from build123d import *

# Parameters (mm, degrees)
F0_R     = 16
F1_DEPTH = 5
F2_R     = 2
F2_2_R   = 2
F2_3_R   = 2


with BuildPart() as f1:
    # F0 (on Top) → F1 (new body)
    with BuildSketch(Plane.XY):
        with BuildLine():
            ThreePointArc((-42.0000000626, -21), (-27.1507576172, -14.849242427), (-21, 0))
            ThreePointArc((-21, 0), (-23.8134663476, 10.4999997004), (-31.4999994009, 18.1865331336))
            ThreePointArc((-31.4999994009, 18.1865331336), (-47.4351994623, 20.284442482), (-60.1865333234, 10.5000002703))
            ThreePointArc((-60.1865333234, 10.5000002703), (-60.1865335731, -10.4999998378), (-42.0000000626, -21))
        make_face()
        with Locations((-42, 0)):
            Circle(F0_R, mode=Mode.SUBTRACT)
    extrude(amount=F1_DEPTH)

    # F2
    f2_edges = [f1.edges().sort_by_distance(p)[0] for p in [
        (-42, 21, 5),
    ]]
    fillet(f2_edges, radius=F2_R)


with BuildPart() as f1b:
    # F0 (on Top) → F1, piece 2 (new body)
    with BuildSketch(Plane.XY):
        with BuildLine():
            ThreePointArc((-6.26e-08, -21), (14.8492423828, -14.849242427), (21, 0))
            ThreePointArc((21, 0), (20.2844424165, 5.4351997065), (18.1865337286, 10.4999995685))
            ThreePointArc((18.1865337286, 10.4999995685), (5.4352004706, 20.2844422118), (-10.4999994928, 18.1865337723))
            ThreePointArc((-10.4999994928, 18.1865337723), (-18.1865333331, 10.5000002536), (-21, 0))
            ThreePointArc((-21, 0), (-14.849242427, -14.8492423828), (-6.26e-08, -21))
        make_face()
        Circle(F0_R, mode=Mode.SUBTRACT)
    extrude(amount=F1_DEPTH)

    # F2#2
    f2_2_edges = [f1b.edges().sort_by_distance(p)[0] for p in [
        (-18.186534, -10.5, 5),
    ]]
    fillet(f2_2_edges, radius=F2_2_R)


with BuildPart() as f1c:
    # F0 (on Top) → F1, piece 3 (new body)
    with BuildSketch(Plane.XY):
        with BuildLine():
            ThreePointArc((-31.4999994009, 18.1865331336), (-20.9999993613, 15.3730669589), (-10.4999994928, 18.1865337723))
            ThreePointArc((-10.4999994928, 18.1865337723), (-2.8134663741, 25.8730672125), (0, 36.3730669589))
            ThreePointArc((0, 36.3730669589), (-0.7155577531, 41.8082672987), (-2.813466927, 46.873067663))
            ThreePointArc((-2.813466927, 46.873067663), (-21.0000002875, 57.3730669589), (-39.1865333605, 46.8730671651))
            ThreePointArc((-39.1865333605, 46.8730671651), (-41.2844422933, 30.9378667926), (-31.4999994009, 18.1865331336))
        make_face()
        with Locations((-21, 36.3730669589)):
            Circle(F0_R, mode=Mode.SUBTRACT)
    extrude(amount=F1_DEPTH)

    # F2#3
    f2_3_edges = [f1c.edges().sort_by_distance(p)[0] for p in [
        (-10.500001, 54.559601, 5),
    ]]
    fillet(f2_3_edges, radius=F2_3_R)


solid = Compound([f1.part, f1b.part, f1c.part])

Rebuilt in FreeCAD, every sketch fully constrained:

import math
import FreeCAD as App
import Part
import Sketcher
from FreeCAD import Vector


def edges_at(feature, points):
    """Names of the edges that pass closest to the given points."""
    edges = feature.Shape.Edges
    near = lambda p: min(range(len(edges)), key=lambda i: edges[i].distToShape(Part.Vertex(*p))[0])
    return sorted({f"Edge{near(p) + 1}" for p in points})

doc = App.newDocument("Part")
body = doc.addObject("PartDesign::Body", "Body")

# Sketch on XY plane
sketch1 = body.newObject("Sketcher::SketchObject", "Sketch")
sketch1.AttachmentSupport = (doc.getObject("XY_Plane"), [""])
sketch1.MapMode = "FlatFace"
sketch1.addGeometry(Part.ArcOfCircle(Part.Circle(Vector(-42, 0, 0), Vector(0, 0, 1), 21), math.radians(-90), math.radians(0)), False)
sketch1.addGeometry(Part.ArcOfCircle(Part.Circle(Vector(-42, 0, 0), Vector(0, 0, 1), 21), math.radians(0), math.radians(60)), False)
sketch1.addGeometry(Part.ArcOfCircle(Part.Circle(Vector(-42, 0, 0), Vector(0, 0, 1), 21), math.radians(60), math.radians(150)), False)
sketch1.addGeometry(Part.ArcOfCircle(Part.Circle(Vector(-42, 0, 0), Vector(0, 0, 1), 21), math.radians(150), math.radians(270)), False)
sketch1.addGeometry(Part.Circle(Vector(-42, 0, 0), Vector(0, 0, 1), 16), False)
sketch1.addConstraint(Sketcher.Constraint("Tangent", 0, 2, 1, 1))
sketch1.addConstraint(Sketcher.Constraint("Tangent", 1, 2, 2, 1))
sketch1.addConstraint(Sketcher.Constraint("Tangent", 2, 2, 3, 1))
sketch1.addConstraint(Sketcher.Constraint("Tangent", 3, 2, 0, 1))
sketch1.addConstraint(Sketcher.Constraint("Coincident", 4, 3, 0, 3))
sketch1.addConstraint(Sketcher.Constraint("Equal", 0, 1))
sketch1.addConstraint(Sketcher.Constraint("PointOnObject", 0, 3, -1))
sketch1.addConstraint(Sketcher.Constraint("PointOnObject", 0, 2, -1))
sketch1.addConstraint(Sketcher.Constraint("Vertical", 4, 3, 3, 2))
sketch1.addConstraint(Sketcher.Constraint("Diameter", 4, 32.0))
sketch1.addConstraint(Sketcher.Constraint("Radius", 0, 21.0))
sketch1.addConstraint(Sketcher.Constraint("DistanceX", 0, 3, -1, 1, 42.0))
sketch1.addConstraint(Sketcher.Constraint("DistanceX", 1, 2, -1, 1, 31.499999))
sketch1.addConstraint(Sketcher.Constraint("DistanceY", -1, 1, 2, 2, 10.5))
pad1 = body.newObject("PartDesign::Pad", "Pad")
pad1.Profile = sketch1
pad1.Length = 5
doc.recompute()

fillet = body.newObject("PartDesign::Fillet", "Fillet")
fillet.Base = (pad1, edges_at(pad1, [(-47.435, 20.284, 5)]))
fillet.Radius = 2
body2 = doc.addObject("PartDesign::Body", "Body001")

# Sketch on XY plane
sketch2 = body2.newObject("Sketcher::SketchObject", "Sketch001")
sketch2.AttachmentSupport = (doc.getObject("XY_Plane001"), [""])
sketch2.MapMode = "FlatFace"
sketch2.addGeometry(Part.ArcOfCircle(Part.Circle(Vector(0, 0, 0), Vector(0, 0, 1), 21), math.radians(-90), math.radians(0)), False)
sketch2.addGeometry(Part.ArcOfCircle(Part.Circle(Vector(0, 0, 0), Vector(0, 0, 1), 21), math.radians(0), math.radians(30)), False)
sketch2.addGeometry(Part.ArcOfCircle(Part.Circle(Vector(0, 0, 0), Vector(0, 0, 1), 21), math.radians(30), math.radians(120)), False)
sketch2.addGeometry(Part.ArcOfCircle(Part.Circle(Vector(0, 0, 0), Vector(0, 0, 1), 21), math.radians(120), math.radians(180)), False)
sketch2.addGeometry(Part.ArcOfCircle(Part.Circle(Vector(0, 0, 0), Vector(0, 0, 1), 21), math.radians(180), math.radians(270)), False)
sketch2.addGeometry(Part.Circle(Vector(0, 0, 0), Vector(0, 0, 1), 16), False)
sketch2.addConstraint(Sketcher.Constraint("Tangent", 0, 2, 1, 1))
sketch2.addConstraint(Sketcher.Constraint("Tangent", 1, 2, 2, 1))
sketch2.addConstraint(Sketcher.Constraint("Tangent", 2, 2, 3, 1))
sketch2.addConstraint(Sketcher.Constraint("Tangent", 3, 2, 4, 1))
sketch2.addConstraint(Sketcher.Constraint("Tangent", 4, 2, 0, 1))
sketch2.addConstraint(Sketcher.Constraint("Coincident", 0, 3, -1, 1))
sketch2.addConstraint(Sketcher.Constraint("Coincident", 2, 3, -1, 1))
sketch2.addConstraint(Sketcher.Constraint("Coincident", 5, 3, -1, 1))
sketch2.addConstraint(Sketcher.Constraint("PointOnObject", 0, 2, -1))
sketch2.addConstraint(Sketcher.Constraint("PointOnObject", 3, 2, -1))
sketch2.addConstraint(Sketcher.Constraint("PointOnObject", 4, 2, -2))
sketch2.addConstraint(Sketcher.Constraint("Diameter", 5, 32.0))
sketch2.addConstraint(Sketcher.Constraint("Radius", 0, 21.0))
sketch2.addConstraint(Sketcher.Constraint("DistanceY", -1, 1, 1, 2, 10.5))
sketch2.addConstraint(Sketcher.Constraint("DistanceX", 2, 2, -1, 1, 10.499999))
pad2 = body2.newObject("PartDesign::Pad", "Pad001")
pad2.Profile = sketch2
pad2.Length = 5
doc.recompute()

fillet2 = body2.newObject("PartDesign::Fillet", "Fillet001")
fillet2.Base = (pad2, edges_at(pad2, [(-14.849, -14.849, 5)]))
fillet2.Radius = 2
body3 = doc.addObject("PartDesign::Body", "Body002")

# Sketch on XY plane
sketch3 = body3.newObject("Sketcher::SketchObject", "Sketch002")
sketch3.AttachmentSupport = (doc.getObject("XY_Plane002"), [""])
sketch3.MapMode = "FlatFace"
sketch3.addGeometry(Part.ArcOfCircle(Part.Circle(Vector(-21, 36, 0), Vector(0, 0, 1), 21), math.radians(-120), math.radians(-60)), False)
sketch3.addGeometry(Part.ArcOfCircle(Part.Circle(Vector(-21, 36, 0), Vector(0, 0, 1), 21), math.radians(-60), math.radians(0)), False)
sketch3.addGeometry(Part.ArcOfCircle(Part.Circle(Vector(-21, 36, 0), Vector(0, 0, 1), 21), math.radians(0), math.radians(150)), False)
sketch3.addGeometry(Part.ArcOfCircle(Part.Circle(Vector(-21, 36, 0), Vector(0, 0, 1), 21), math.radians(150), math.radians(240)), False)
sketch3.addGeometry(Part.Circle(Vector(-21, 36, 0), Vector(0, 0, 1), 16), False)
sketch3.addConstraint(Sketcher.Constraint("Tangent", 0, 2, 1, 1))
sketch3.addConstraint(Sketcher.Constraint("Tangent", 1, 2, 2, 1))
sketch3.addConstraint(Sketcher.Constraint("Tangent", 2, 2, 3, 1))
sketch3.addConstraint(Sketcher.Constraint("Tangent", 3, 2, 0, 1))
sketch3.addConstraint(Sketcher.Constraint("Coincident", 4, 3, 0, 3))
sketch3.addConstraint(Sketcher.Constraint("Equal", 0, 1))
sketch3.addConstraint(Sketcher.Constraint("PointOnObject", 1, 2, -2))
sketch3.addConstraint(Sketcher.Constraint("Horizontal", 4, 3, 1, 2))
sketch3.addConstraint(Sketcher.Constraint("Horizontal", 0, 2, 3, 2))
sketch3.addConstraint(Sketcher.Constraint("Diameter", 4, 32.0))
sketch3.addConstraint(Sketcher.Constraint("Radius", 0, 21.0))
sketch3.addConstraint(Sketcher.Constraint("DistanceX", 3, 2, 0, 2, 21.0))
sketch3.addConstraint(Sketcher.Constraint("DistanceY", 0, 3, 2, 2, 10.5))
sketch3.addConstraint(Sketcher.Constraint("DistanceY", -1, 1, 0, 3, 36.373067))
pad3 = body3.newObject("PartDesign::Pad", "Pad002")
pad3.Profile = sketch3
pad3.Length = 5
doc.recompute()

fillet3 = body3.newObject("PartDesign::Fillet", "Fillet002")
fillet3.Base = (pad3, edges_at(pad3, [(-15.565, 56.658, 5)]))
fillet3.Radius = 2

doc.recompute()
